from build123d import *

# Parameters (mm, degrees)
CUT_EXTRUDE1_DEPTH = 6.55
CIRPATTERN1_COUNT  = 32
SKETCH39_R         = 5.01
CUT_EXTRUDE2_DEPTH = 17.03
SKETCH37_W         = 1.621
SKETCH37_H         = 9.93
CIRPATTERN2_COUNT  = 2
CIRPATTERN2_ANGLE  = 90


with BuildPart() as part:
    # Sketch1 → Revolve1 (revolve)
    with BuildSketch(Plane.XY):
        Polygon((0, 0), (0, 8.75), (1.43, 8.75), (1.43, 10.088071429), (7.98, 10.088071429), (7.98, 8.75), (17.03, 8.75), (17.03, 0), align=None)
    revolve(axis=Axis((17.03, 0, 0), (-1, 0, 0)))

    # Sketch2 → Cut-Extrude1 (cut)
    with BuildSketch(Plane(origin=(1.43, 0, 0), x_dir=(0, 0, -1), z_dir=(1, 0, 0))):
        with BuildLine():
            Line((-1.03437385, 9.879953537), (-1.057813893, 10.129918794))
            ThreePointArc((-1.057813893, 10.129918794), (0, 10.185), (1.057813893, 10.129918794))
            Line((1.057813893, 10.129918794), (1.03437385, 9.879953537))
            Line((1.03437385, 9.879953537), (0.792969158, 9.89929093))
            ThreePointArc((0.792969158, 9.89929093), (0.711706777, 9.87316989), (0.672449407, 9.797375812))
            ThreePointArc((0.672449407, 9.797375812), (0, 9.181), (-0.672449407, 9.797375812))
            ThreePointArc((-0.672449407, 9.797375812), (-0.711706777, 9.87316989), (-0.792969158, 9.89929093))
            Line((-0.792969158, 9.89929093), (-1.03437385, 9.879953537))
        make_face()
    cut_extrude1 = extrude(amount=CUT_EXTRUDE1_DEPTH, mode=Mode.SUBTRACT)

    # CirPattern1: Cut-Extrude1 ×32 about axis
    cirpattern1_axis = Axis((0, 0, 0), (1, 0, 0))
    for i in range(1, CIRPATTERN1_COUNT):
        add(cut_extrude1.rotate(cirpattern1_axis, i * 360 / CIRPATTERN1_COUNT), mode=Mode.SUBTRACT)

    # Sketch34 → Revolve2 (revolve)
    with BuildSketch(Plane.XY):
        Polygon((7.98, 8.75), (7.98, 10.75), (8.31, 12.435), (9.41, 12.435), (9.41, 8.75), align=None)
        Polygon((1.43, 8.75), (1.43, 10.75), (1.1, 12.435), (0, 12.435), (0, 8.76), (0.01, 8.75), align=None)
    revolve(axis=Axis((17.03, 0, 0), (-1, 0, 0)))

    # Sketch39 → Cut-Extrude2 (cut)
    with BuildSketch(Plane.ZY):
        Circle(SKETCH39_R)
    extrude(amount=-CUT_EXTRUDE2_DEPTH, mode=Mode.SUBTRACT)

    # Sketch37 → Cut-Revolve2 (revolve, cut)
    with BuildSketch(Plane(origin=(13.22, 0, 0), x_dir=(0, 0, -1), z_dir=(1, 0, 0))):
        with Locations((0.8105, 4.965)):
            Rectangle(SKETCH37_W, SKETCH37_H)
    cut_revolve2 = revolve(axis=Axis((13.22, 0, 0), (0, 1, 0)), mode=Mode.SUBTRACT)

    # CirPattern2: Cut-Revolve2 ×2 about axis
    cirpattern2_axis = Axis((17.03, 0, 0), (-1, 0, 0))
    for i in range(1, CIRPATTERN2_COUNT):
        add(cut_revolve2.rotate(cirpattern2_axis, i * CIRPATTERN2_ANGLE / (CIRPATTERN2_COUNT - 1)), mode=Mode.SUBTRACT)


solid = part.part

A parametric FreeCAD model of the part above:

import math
import FreeCAD as App
import Part
import Sketcher
Q = App.Units.Quantity

doc = App.newDocument("Part")
body = doc.addObject("PartDesign::Body", "Body")

sketch1 = doc.addObject("Sketcher::SketchObject", "Sketch")
body.addObject(sketch1)
sketch1.AttachmentSupport = (doc.XY_Plane, [""])
sketch1.MapMode = "FlatFace"
sketch1.addGeometry(Part.LineSegment(App.Vector(0, 8.8, 0), App.Vector(0, 0, 0)), False)
sketch1.addGeometry(Part.LineSegment(App.Vector(0, 0, 0), App.Vector(17, 0, 0)), False)
sketch1.addGeometry(Part.LineSegment(App.Vector(17, 0, 0), App.Vector(17, 8.8, 0)), False)
sketch1.addGeometry(Part.LineSegment(App.Vector(17, 8.8, 0), App.Vector(8, 8.8, 0)), False)
sketch1.addGeometry(Part.LineSegment(App.Vector(8, 8.8, 0), App.Vector(8, 10.1, 0)), False)
sketch1.addGeometry(Part.LineSegment(App.Vector(8, 10.1, 0), App.Vector(1.4, 10.1, 0)), False)
sketch1.addGeometry(Part.LineSegment(App.Vector(1.4, 10.1, 0), App.Vector(1.4, 8.8, 0)), False)
sketch1.addGeometry(Part.LineSegment(App.Vector(1.4, 8.8, 0), App.Vector(0, 8.8, 0)), False)
sketch1.addConstraint(Sketcher.Constraint("Coincident", 0, 2, 1, 1))
sketch1.addConstraint(Sketcher.Constraint("Coincident", 1, 2, 2, 1))
sketch1.addConstraint(Sketcher.Constraint("Coincident", 2, 2, 3, 1))
sketch1.addConstraint(Sketcher.Constraint("Coincident", 3, 2, 4, 1))
sketch1.addConstraint(Sketcher.Constraint("Coincident", 4, 2, 5, 1))
sketch1.addConstraint(Sketcher.Constraint("Coincident", 5, 2, 6, 1))
sketch1.addConstraint(Sketcher.Constraint("Coincident", 6, 2, 7, 1))
sketch1.addConstraint(Sketcher.Constraint("Coincident", 7, 2, 0, 1))
sketch1.addConstraint(Sketcher.Constraint("Vertical", 0))
sketch1.addConstraint(Sketcher.Constraint("Horizontal", 1))
sketch1.addConstraint(Sketcher.Constraint("Vertical", 2))
sketch1.addConstraint(Sketcher.Constraint("Horizontal", 3))
sketch1.addConstraint(Sketcher.Constraint("Vertical", 4))
sketch1.addConstraint(Sketcher.Constraint("Horizontal", 5))
sketch1.addConstraint(Sketcher.Constraint("Vertical", 6))
sketch1.addConstraint(Sketcher.Constraint("Horizontal", 7))
sketch1.addConstraint(Sketcher.Constraint("Coincident", 0, 2, -1, 1))
sketch1.addConstraint(Sketcher.Constraint("Horizontal", 3, 2, 6, 2))
sketch1.addConstraint(Sketcher.Constraint("DistanceX", 1, 1, 1, 2, 17.03))
sketch1.addConstraint(Sketcher.Constraint("DistanceX", 3, 2, 3, 1, 9.05))
sketch1.addConstraint(Sketcher.Constraint("DistanceX", 5, 2, 5, 1, 6.55))
sketch1.addConstraint(Sketcher.Constraint("DistanceY", 0, 2, 0, 1, 8.75))
sketch1.addConstraint(Sketcher.Constraint("DistanceY", 4, 1, 4, 2, 1.338071))
revolution = doc.addObject("PartDesign::Revolution", "Revolution")
body.addObject(revolution)
revolution.Profile = sketch1
revolution.ReferenceAxis = (sketch1, ["H_Axis"])
revolution.Angle = 360

sketch2 = doc.addObject("Sketcher::SketchObject", "Sketch001")
body.addObject(sketch2)
sketch2.AttachmentSupport = (doc.YZ_Plane, [""])
sketch2.MapMode = "FlatFace"
sketch2.AttachmentOffset = App.Placement(App.Vector(0, 0, 1.43), App.Rotation())
sketch2.addGeometry(Part.LineSegment(App.Vector(10.129919, 1.057814, 0), App.Vector(9.879954, 1.034374, 0)), False)
sketch2.addGeometry(Part.LineSegment(App.Vector(9.879954, 1.034374, 0), App.Vector(9.899291, 0.792969, 0)), False)
sketch2.addGeometry(Part.ArcOfCircle(Part.Circle(App.Vector(9.787649, 0.784026, 0), App.Vector(0, 0, 1), 0.112), math.radians(-85.017547), math.radians(4.579821)), False)
sketch2.addGeometry(Part.ArcOfCircle(Part.Circle(App.Vector(9.856, 0, 0), App.Vector(0, 0, 1), 0.675), math.radians(94.982453), math.radians(265.017547)), False)
sketch2.addGeometry(Part.ArcOfCircle(Part.Circle(App.Vector(9.787649, -0.784026, 0), App.Vector(0, 0, 1), 0.112), math.radians(-4.579821), math.radians(85.017547)), False)
sketch2.addGeometry(Part.LineSegment(App.Vector(9.899291, -0.792969, 0), App.Vector(9.879954, -1.034374, 0)), False)
sketch2.addGeometry(Part.LineSegment(App.Vector(9.879954, -1.034374, 0), App.Vector(10.129919, -1.057814, 0)), False)
sketch2.addGeometry(Part.ArcOfCircle(Part.Circle(App.Vector(0, 0, 0), App.Vector(0, 0, 1), 10.185), math.radians(-5.961489), math.radians(5.961489)), False)
sketch2.addConstraint(Sketcher.Constraint("Coincident", 0, 2, 1, 1))
sketch2.addConstraint(Sketcher.Constraint("Coincident", 1, 2, 2, 2))
sketch2.addConstraint(Sketcher.Constraint("Coincident", 2, 1, 3, 1))
sketch2.addConstraint(Sketcher.Constraint("Coincident", 3, 2, 4, 2))
sketch2.addConstraint(Sketcher.Constraint("Coincident", 4, 1, 5, 1))
sketch2.addConstraint(Sketcher.Constraint("Coincident", 5, 2, 6, 1))
sketch2.addConstraint(Sketcher.Constraint("Coincident", 6, 2, 7, 1))
sketch2.addConstraint(Sketcher.Constraint("Coincident", 7, 2, 0, 1))
sketch2.addConstraint(Sketcher.Constraint("Coincident", 7, 3, -1, 1))
sketch2.addConstraint(Sketcher.Constraint("PointOnObject", 3, 3, -1))
sketch2.addConstraint(Sketcher.Constraint("Radius", 2, 0.112))
sketch2.addConstraint(Sketcher.Constraint("Radius", 3, 0.675))
sketch2.addConstraint(Sketcher.Constraint("Radius", 4, 0.112))
sketch2.addConstraint(Sketcher.Constraint("Radius", 7, 10.185))
sketch2.addConstraint(Sketcher.Constraint("DistanceX", -1, 1, 3, 3, 9.856))
sketch2.addConstraint(Sketcher.Constraint("DistanceY", 4, 3, 0, 2, 1.8184))
sketch2.addConstraint(Sketcher.Constraint("DistanceY", 3, 2, 2, 1, 1.344899))
sketch2.addConstraint(Sketcher.Constraint("Distance", 0, 0.251062))
sketch2.addConstraint(Sketcher.Constraint("Distance", 6, 0.251062))
sketch2.addConstraint(Sketcher.Constraint("DistanceX", -1, 1, 2, 3, 9.787649))
sketch2.addConstraint(Sketcher.Constraint("DistanceX", -1, 1, 4, 3, 9.787649))
sketch2.addConstraint(Sketcher.Constraint("DistanceX", -1, 1, 1, 2, 9.899291))
sketch2.addConstraint(Sketcher.Constraint("DistanceY", -1, 1, 2, 1, 0.672449))
sketch2.addConstraint(Sketcher.Constraint("DistanceX", -1, 1, 4, 1, 9.899291))
sketch2.addConstraint(Sketcher.Constraint("DistanceX", -1, 1, 6, 2, 10.129919))
sketch2.addConstraint(Sketcher.Constraint("DistanceX", -1, 1, 7, 2, 10.129919))
sketch2.addConstraint(Sketcher.Constraint("DistanceY", 6, 2, 5, 2, 0.02344))
pocket1 = doc.addObject("PartDesign::Pocket", "Pocket")
body.addObject(pocket1)
pocket1.Profile = sketch2
pocket1.Length = 6.55
pocket1.Reversed = True
doc.recompute()

polarpattern = doc.addObject("PartDesign::PolarPattern", "PolarPattern")
body.addObject(polarpattern)
polarpattern.Originals = [pocket1]
polarpattern.Axis = (doc.X_Axis, [""])
polarpattern.Angle = 360
polarpattern.Occurrences = 32
body.Tip = polarpattern

sketch3 = doc.addObject("Sketcher::SketchObject", "Sketch002")
body.addObject(sketch3)
sketch3.AttachmentSupport = (doc.XY_Plane, [""])
sketch3.MapMode = "FlatFace"
sketch3.addGeometry(Part.LineSegment(App.Vector(7.98, 10.75, 0), App.Vector(7.98, 8.75, 0)), False)
sketch3.addGeometry(Part.LineSegment(App.Vector(7.98, 8.75, 0), App.Vector(9.41, 8.75, 0)), False)
sketch3.addGeometry(Part.LineSegment(App.Vector(9.41, 8.75, 0), App.Vector(9.41, 12.435, 0)), False)
sketch3.addGeometry(Part.LineSegment(App.Vector(9.41, 12.435, 0), App.Vector(8.31, 12.435, 0)), False)
sketch3.addGeometry(Part.LineSegment(App.Vector(8.31, 12.435, 0), App.Vector(7.98, 10.75, 0)), False)
sketch3.addGeometry(Part.LineSegment(App.Vector(1.43, 8.75, 0), App.Vector(1.43, 10.75, 0)), False)
sketch3.addGeometry(Part.LineSegment(App.Vector(1.43, 10.75, 0), App.Vector(1.1, 12.435, 0)), False)
sketch3.addGeometry(Part.LineSegment(App.Vector(1.1, 12.435, 0), App.Vector(0, 12.435, 0)), False)
sketch3.addGeometry(Part.LineSegment(App.Vector(0, 12.435, 0), App.Vector(0, 8.76, 0)), False)
sketch3.addGeometry(Part.LineSegment(App.Vector(0, 8.76, 0), App.Vector(0.01, 8.75, 0)), False)
sketch3.addGeometry(Part.LineSegment(App.Vector(0.01, 8.75, 0), App.Vector(1.43, 8.75, 0)), False)
sketch3.addConstraint(Sketcher.Constraint("Coincident", 0, 2, 1, 1))
sketch3.addConstraint(Sketcher.Constraint("Coincident", 1, 2, 2, 1))
sketch3.addConstraint(Sketcher.Constraint("Coincident", 2, 2, 3, 1))
sketch3.addConstraint(Sketcher.Constraint("Coincident", 3, 2, 4, 1))
sketch3.addConstraint(Sketcher.Constraint("Coincident", 4, 2, 0, 1))
sketch3.addConstraint(Sketcher.Constraint("Coincident", 5, 2, 6, 1))
sketch3.addConstraint(Sketcher.Constraint("Coincident", 6, 2, 7, 1))
sketch3.addConstraint(Sketcher.Constraint("Coincident", 7, 2, 8, 1))
sketch3.addConstraint(Sketcher.Constraint("Coincident", 8, 2, 9, 1))
sketch3.addConstraint(Sketcher.Constraint("Coincident", 9, 2, 10, 1))
sketch3.addConstraint(Sketcher.Constraint("Coincident", 10, 2, 5, 1))
sketch3.addConstraint(Sketcher.Constraint("Vertical", 0))
sketch3.addConstraint(Sketcher.Constraint("Horizontal", 1))
sketch3.addConstraint(Sketcher.Constraint("Vertical", 2))
sketch3.addConstraint(Sketcher.Constraint("Horizontal", 3))
sketch3.addConstraint(Sketcher.Constraint("Vertical", 5))
sketch3.addConstraint(Sketcher.Constraint("Horizontal", 7))
sketch3.addConstraint(Sketcher.Constraint("Vertical", 8))
sketch3.addConstraint(Sketcher.Constraint("Horizontal", 10))
sketch3.addConstraint(Sketcher.Constraint("PointOnObject", 7, 2, -2))
sketch3.addConstraint(Sketcher.Constraint("Horizontal", 4, 2, 5, 2))
sketch3.addConstraint(Sketcher.Constraint("Horizontal", 3, 2, 6, 2))
sketch3.addConstraint(Sketcher.Constraint("Horizontal", 1, 2, 9, 2))
sketch3.addConstraint(Sketcher.Constraint("Equal", 3, 7))
sketch3.addConstraint(Sketcher.Constraint("Equal", 4, 6))
sketch3.addConstraint(Sketcher.Constraint("DistanceY", 0, 2, 0, 1, 2.0))
sketch3.addConstraint(Sketcher.Constraint("Angle", 9, Q("-45 deg")))
sketch3.addConstraint(Sketcher.Constraint("DistanceX", 3, 2, 3, 1, 1.1))
sketch3.addConstraint(Sketcher.Constraint("DistanceX", 1, 1, 1, 2, 1.43))
sketch3.addConstraint(Sketcher.Constraint("DistanceX", 10, 1, 10, 2, 1.42))
sketch3.addConstraint(Sketcher.Constraint("DistanceY", 2, 1, 2, 2, 3.685))
sketch3.addConstraint(Sketcher.Constraint("DistanceX", -1, 1, 0, 2, 7.98))
sketch3.addConstraint(Sketcher.Constraint("DistanceY", -1, 1, 0, 2, 8.75))
revolution2 = doc.addObject("PartDesign::Revolution", "Revolution001")
body.addObject(revolution2)
revolution2.Profile = sketch3
revolution2.ReferenceAxis = (sketch3, ["H_Axis"])
revolution2.Angle = 360

sketch4 = doc.addObject("Sketcher::SketchObject", "Sketch003")
body.addObject(sketch4)
sketch4.AttachmentSupport = (doc.YZ_Plane, [""])
sketch4.MapMode = "FlatFace"
sketch4.addGeometry(Part.Circle(App.Vector(0, 0, 0), App.Vector(0, 0, 1), 5), False)
sketch4.addConstraint(Sketcher.Constraint("Coincident", 0, 3, -1, 1))
sketch4.addConstraint(Sketcher.Constraint("Diameter", 0, 10.02))
pocket2 = doc.addObject("PartDesign::Pocket", "Pocket001")
body.addObject(pocket2)
pocket2.Profile = sketch4
pocket2.Length = 17.03
pocket2.Reversed = True

sketch5 = doc.addObject("Sketcher::SketchObject", "Sketch004")
body.addObject(sketch5)
sketch5.AttachmentSupport = (doc.YZ_Plane, [""])
sketch5.MapMode = "FlatFace"
sketch5.AttachmentOffset = App.Placement(App.Vector(0, 0, 13.22), App.Rotation())
sketch5.addGeometry(Part.LineSegment(App.Vector(9.9, 0, 0), App.Vector(0, 0, 0)), False)
sketch5.addGeometry(Part.LineSegment(App.Vector(0, 0, 0), App.Vector(0, -1.6, 0)), False)
sketch5.addGeometry(Part.LineSegment(App.Vector(0, -1.6, 0), App.Vector(9.9, -1.6, 0)), False)
sketch5.addGeometry(Part.LineSegment(App.Vector(9.9, -1.6, 0), App.Vector(9.9, 0, 0)), False)
sketch5.addConstraint(Sketcher.Constraint("Coincident", 0, 2, 1, 1))
sketch5.addConstraint(Sketcher.Constraint("Coincident", 1, 2, 2, 1))
sketch5.addConstraint(Sketcher.Constraint("Coincident", 2, 2, 3, 1))
sketch5.addConstraint(Sketcher.Constraint("Coincident", 3, 2, 0, 1))
sketch5.addConstraint(Sketcher.Constraint("Horizontal", 0))
sketch5.addConstraint(Sketcher.Constraint("Vertical", 1))
sketch5.addConstraint(Sketcher.Constraint("Horizontal", 2))
sketch5.addConstraint(Sketcher.Constraint("Vertical", 3))
sketch5.addConstraint(Sketcher.Constraint("Coincident", 0, 2, -1, 1))
sketch5.addConstraint(Sketcher.Constraint("DistanceX", 0, 2, 0, 1, 9.93))
sketch5.addConstraint(Sketcher.Constraint("DistanceY", 1, 2, 1, 1, 1.621))
groove = doc.addObject("PartDesign::Groove", "Groove")
body.addObject(groove)
groove.Profile = sketch5
groove.ReferenceAxis = (sketch5, ["H_Axis"])
groove.Angle = 360
doc.recompute()

polarpattern2 = doc.addObject("PartDesign::PolarPattern", "PolarPattern001")
body.addObject(polarpattern2)
polarpattern2.Originals = [groove]
polarpattern2.Axis = (doc.X_Axis, [""])
polarpattern2.Angle = 90
polarpattern2.Occurrences = 2
polarpattern2.Reversed = True
body.Tip = polarpattern2

doc.recompute()
